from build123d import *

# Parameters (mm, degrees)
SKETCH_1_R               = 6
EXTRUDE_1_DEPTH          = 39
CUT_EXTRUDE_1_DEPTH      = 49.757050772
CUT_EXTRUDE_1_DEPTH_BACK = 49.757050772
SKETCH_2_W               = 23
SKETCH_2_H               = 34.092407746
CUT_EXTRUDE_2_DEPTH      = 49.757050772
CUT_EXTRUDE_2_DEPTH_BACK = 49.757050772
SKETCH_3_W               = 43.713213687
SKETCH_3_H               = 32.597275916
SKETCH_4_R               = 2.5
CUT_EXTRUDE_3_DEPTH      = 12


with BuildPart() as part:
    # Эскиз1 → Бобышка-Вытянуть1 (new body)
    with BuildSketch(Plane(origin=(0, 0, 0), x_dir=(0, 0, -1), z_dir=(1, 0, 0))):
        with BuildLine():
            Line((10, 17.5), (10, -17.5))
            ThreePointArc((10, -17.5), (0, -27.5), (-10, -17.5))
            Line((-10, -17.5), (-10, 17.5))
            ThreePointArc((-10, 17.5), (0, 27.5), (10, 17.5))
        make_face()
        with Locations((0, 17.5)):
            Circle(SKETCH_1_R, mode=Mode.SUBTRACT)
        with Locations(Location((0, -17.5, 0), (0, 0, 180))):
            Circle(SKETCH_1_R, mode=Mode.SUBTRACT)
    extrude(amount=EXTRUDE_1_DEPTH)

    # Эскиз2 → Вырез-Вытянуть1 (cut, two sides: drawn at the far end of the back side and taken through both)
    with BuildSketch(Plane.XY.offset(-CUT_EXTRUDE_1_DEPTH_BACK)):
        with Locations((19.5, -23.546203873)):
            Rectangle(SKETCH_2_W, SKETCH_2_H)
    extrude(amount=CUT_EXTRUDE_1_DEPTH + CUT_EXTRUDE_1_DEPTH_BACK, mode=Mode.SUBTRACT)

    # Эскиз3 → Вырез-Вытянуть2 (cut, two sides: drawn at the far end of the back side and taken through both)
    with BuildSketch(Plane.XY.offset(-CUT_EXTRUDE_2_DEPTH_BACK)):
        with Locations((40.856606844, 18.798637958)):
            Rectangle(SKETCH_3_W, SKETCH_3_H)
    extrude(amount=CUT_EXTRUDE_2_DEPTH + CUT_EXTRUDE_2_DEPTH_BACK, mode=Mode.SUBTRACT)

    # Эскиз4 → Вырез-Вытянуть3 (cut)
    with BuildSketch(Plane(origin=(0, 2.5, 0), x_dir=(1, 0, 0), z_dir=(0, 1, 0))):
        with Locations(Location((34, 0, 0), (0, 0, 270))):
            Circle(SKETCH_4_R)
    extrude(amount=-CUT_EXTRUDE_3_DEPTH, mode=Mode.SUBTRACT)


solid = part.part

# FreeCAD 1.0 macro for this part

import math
import FreeCAD as App
import Part
import Sketcher
from FreeCAD import Vector


def add_polygon(sketch, points):
    """Adds a closed chain of lines whose ends are joined by coincident constraints."""
    first, n = sketch.GeometryCount, len(points)
    for a, b in zip(points, points[1:] + points[:1]):
        sketch.addGeometry(Part.LineSegment(App.Vector(*a, 0), App.Vector(*b, 0)), False)
    for i in range(n):
        sketch.addConstraint(Sketcher.Constraint("Coincident", first + i, 2, first + (i + 1) % n, 1))

doc = App.newDocument("Part")
params = doc.addObject("Spreadsheet::Sheet", "Params")
for row, (alias, value) in enumerate([
    ("sketch1_diameter", "12 mm"),
    ("sketch1_radius", "10 mm"),
    ("sketch1_width", "35 mm"),
    ("pad1_length", "39 mm"),
    ("sketch2_width", "23 mm"),
    ("sketch4_diameter", "5 mm"),
    ("pocket3_length", "12 mm"),
], start=1):
    params.set(f"A{row}", alias)
    params.set(f"B{row}", "=" + value)
    params.setAlias(f"B{row}", alias)

body = doc.addObject("PartDesign::Body", "Body")

sketch1 = doc.addObject("Sketcher::SketchObject", "Sketch")
body.addObject(sketch1)
sketch1.AttachmentSupport = (doc.YZ_Plane, [""])
sketch1.MapMode = "FlatFace"
sketch1.addGeometry(Part.LineSegment(Vector(-18, -10, 0), Vector(18, -10, 0)), False)
sketch1.addGeometry(Part.ArcOfCircle(Part.Circle(Vector(18, 0, 0), Vector(0, 0, 1), 10), math.radians(-90), math.radians(90)), False)
sketch1.addGeometry(Part.LineSegment(Vector(18, 10, 0), Vector(-18, 10, 0)), False)
sketch1.addGeometry(Part.ArcOfCircle(Part.Circle(Vector(-18, 0, 0), Vector(0, 0, 1), 10), math.radians(90), math.radians(270)), False)
sketch1.addGeometry(Part.Circle(Vector(-18, 0, 0), Vector(0, 0, 1), 6), False)
sketch1.addGeometry(Part.Circle(Vector(18, 0, 0), Vector(0, 0, 1), 6), False)
sketch1.addConstraint(Sketcher.Constraint("Tangent", 0, 2, 1, 1))
sketch1.addConstraint(Sketcher.Constraint("Tangent", 1, 2, 2, 1))
sketch1.addConstraint(Sketcher.Constraint("Tangent", 2, 2, 3, 1))
sketch1.addConstraint(Sketcher.Constraint("Tangent", 3, 2, 0, 1))
sketch1.addConstraint(Sketcher.Constraint("Horizontal", 0))
sketch1.addConstraint(Sketcher.Constraint("Horizontal", 2))
sketch1.addConstraint(Sketcher.Constraint("Coincident", 4, 3, 3, 3))
sketch1.addConstraint(Sketcher.Constraint("Coincident", 5, 3, 1, 3))
sketch1.addConstraint(Sketcher.Constraint("Equal", 4, 5))
sketch1.addConstraint(Sketcher.Constraint("Symmetric", 1, 3, 3, 3, -1, 1))
sketch1.addConstraint(Sketcher.Constraint("Diameter", 4, 12.0))
sketch1.addConstraint(Sketcher.Constraint("Radius", 1, 10.0))
sketch1.addConstraint(Sketcher.Constraint("DistanceX", 0, 1, 0, 2, 35.0))
sketch1.setExpression("Constraints[10]", "Params.sketch1_diameter")
sketch1.setExpression("Constraints[11]", "Params.sketch1_radius")
sketch1.setExpression("Constraints[12]", "Params.sketch1_width")
pad1 = doc.addObject("PartDesign::Pad", "Pad")
body.addObject(pad1)
pad1.Profile = sketch1
pad1.setExpression("Length", "Params.pad1_length")

sketch2 = doc.addObject("Sketcher::SketchObject", "Sketch001")
body.addObject(sketch2)
sketch2.AttachmentSupport = (doc.XY_Plane, [""])
sketch2.MapMode = "FlatFace"
add_polygon(sketch2, [(8, -6), (8, -41), (31, -41), (31, -6)])
sketch2.addConstraint(Sketcher.Constraint("Vertical", 0))
sketch2.addConstraint(Sketcher.Constraint("Horizontal", 1))
sketch2.addConstraint(Sketcher.Constraint("Vertical", 2))
sketch2.addConstraint(Sketcher.Constraint("Horizontal", 3))
sketch2.addConstraint(Sketcher.Constraint("DistanceX", 1, 1, 1, 2, 23.0))
sketch2.addConstraint(Sketcher.Constraint("DistanceX", -1, 1, 0, 2, 8.0))
sketch2.addConstraint(Sketcher.Constraint("DistanceY", 2, 2, -1, 1, 6.5))
sketch2.addConstraint(Sketcher.Constraint("DistanceY", 0, 2, 0, 1, 34.092408))
sketch2.setExpression("Constraints[8]", "Params.sketch2_width")
pocket1 = doc.addObject("PartDesign::Pocket", "Pocket")
body.addObject(pocket1)
pocket1.Profile = sketch2
pocket1.Type = "ThroughAll"
pocket1.Midplane = True

sketch3 = doc.addObject("Sketcher::SketchObject", "Sketch002")
body.addObject(sketch3)
sketch3.AttachmentSupport = (doc.XY_Plane, [""])
sketch3.MapMode = "FlatFace"
add_polygon(sketch3, [(19, 35), (19, 2), (63, 2), (63, 35)])
sketch3.addConstraint(Sketcher.Constraint("Vertical", 0))
sketch3.addConstraint(Sketcher.Constraint("Horizontal", 1))
sketch3.addConstraint(Sketcher.Constraint("Vertical", 2))
sketch3.addConstraint(Sketcher.Constraint("Horizontal", 3))
sketch3.addConstraint(Sketcher.Constraint("DistanceX", -1, 1, 0, 2, 19.0))
sketch3.addConstraint(Sketcher.Constraint("DistanceY", -1, 1, 0, 2, 2.5))
sketch3.addConstraint(Sketcher.Constraint("DistanceX", 1, 1, 1, 2, 43.713214))
sketch3.addConstraint(Sketcher.Constraint("DistanceY", 0, 2, 0, 1, 32.597276))
pocket2 = doc.addObject("PartDesign::Pocket", "Pocket001")
body.addObject(pocket2)
pocket2.Profile = sketch3
pocket2.Type = "ThroughAll"
pocket2.Midplane = True

sketch4 = doc.addObject("Sketcher::SketchObject", "Sketch003")
body.addObject(sketch4)
sketch4.AttachmentSupport = (doc.XZ_Plane, [""])
sketch4.MapMode = "FlatFace"
sketch4.AttachmentOffset = App.Placement(Vector(0, 0, -2.5), App.Rotation())
sketch4.addGeometry(Part.Circle(Vector(34, 0, 0), Vector(0, 0, 1), 2.5), False)
sketch4.addConstraint(Sketcher.Constraint("PointOnObject", 0, 3, -1))
sketch4.addConstraint(Sketcher.Constraint("Diameter", 0, 5.0))
sketch4.addConstraint(Sketcher.Constraint("DistanceX", -1, 1, 0, 3, 34.0))
sketch4.setExpression("Constraints[1]", "Params.sketch4_diameter")
pocket3 = doc.addObject("PartDesign::Pocket", "Pocket002")
body.addObject(pocket3)
pocket3.Profile = sketch4
pocket3.setExpression("Length", "Params.pocket3_length")
pocket3.Reversed = True

doc.recompute()
